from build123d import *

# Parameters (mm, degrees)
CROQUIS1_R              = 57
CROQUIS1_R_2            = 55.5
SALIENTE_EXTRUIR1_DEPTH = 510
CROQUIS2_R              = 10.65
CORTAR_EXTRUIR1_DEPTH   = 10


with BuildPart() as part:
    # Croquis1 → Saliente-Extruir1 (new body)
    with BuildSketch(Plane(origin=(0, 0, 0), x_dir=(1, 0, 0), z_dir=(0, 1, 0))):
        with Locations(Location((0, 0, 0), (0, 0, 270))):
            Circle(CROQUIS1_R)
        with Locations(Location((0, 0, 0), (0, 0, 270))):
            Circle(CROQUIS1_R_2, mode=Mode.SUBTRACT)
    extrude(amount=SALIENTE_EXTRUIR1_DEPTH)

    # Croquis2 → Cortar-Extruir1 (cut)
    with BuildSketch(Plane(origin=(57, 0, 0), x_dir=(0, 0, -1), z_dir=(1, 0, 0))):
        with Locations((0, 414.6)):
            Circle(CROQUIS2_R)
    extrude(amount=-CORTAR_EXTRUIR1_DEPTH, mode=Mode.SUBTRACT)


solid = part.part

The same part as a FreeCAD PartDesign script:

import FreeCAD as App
import Part
import Sketcher

V = App.Vector

doc = App.newDocument("Part")
params = doc.addObject("Spreadsheet::Sheet", "Params")
for row, (alias, value) in enumerate([
    ("sketch1_diameter", "114 mm"),
    ("sketch1_diameter2", "111 mm"),
    ("pad1_length", "510 mm"),
    ("sketch2_diameter", "21.3 mm"),
    ("pocket1_length", "10 mm"),
], start=1):
    params.set(f"A{row}", alias)
    params.set(f"B{row}", "=" + value)
    params.setAlias(f"B{row}", alias)

body = doc.addObject("PartDesign::Body", "Body")

# Sketch on XZ plane
sketch1 = body.newObject("Sketcher::SketchObject", "Sketch")
sketch1.AttachmentSupport = (doc.getObject("XZ_Plane"), [""])
sketch1.MapMode = "FlatFace"
sketch1.addGeometry([
    Part.Circle(V(0, 0, 0), V(0, 0, 1), 57),
    Part.Circle(V(0, 0, 0), V(0, 0, 1), 55.5),
], False)
sketch1.addConstraint([
    Sketcher.Constraint("Coincident", 0, 3, -1, 1),
    Sketcher.Constraint("Coincident", 1, 3, -1, 1),
    Sketcher.Constraint("Diameter", 0, 114.0),
    Sketcher.Constraint("Diameter", 1, 111.0),
])
sketch1.setExpression("Constraints[2]", "Params.sketch1_diameter")
sketch1.setExpression("Constraints[3]", "Params.sketch1_diameter2")
pad1 = body.newObject("PartDesign::Pad", "Pad")
pad1.Profile = sketch1
pad1.setExpression("Length", "Params.pad1_length")
pad1.Reversed = True

# Sketch on YZ plane
sketch2 = body.newObject("Sketcher::SketchObject", "Sketch001")
sketch2.AttachmentSupport = (doc.getObject("YZ_Plane"), [""])
sketch2.MapMode = "FlatFace"
sketch2.AttachmentOffset = App.Placement(V(0, 0, 57), App.Rotation())
sketch2.addGeometry(Part.Circle(V(414.6, 0, 0), V(0, 0, 1), 10.65), False)
sketch2.addConstraint([
    Sketcher.Constraint("PointOnObject", 0, 3, -1),
    Sketcher.Constraint("Diameter", 0, 21.3),
    Sketcher.Constraint("DistanceX", -1, 1, 0, 3, 414.6),
])
sketch2.setExpression("Constraints[1]", "Params.sketch2_diameter")
pocket1 = body.newObject("PartDesign::Pocket", "Pocket")
pocket1.Profile = sketch2
pocket1.setExpression("Length", "Params.pocket1_length")

doc.recompute()
